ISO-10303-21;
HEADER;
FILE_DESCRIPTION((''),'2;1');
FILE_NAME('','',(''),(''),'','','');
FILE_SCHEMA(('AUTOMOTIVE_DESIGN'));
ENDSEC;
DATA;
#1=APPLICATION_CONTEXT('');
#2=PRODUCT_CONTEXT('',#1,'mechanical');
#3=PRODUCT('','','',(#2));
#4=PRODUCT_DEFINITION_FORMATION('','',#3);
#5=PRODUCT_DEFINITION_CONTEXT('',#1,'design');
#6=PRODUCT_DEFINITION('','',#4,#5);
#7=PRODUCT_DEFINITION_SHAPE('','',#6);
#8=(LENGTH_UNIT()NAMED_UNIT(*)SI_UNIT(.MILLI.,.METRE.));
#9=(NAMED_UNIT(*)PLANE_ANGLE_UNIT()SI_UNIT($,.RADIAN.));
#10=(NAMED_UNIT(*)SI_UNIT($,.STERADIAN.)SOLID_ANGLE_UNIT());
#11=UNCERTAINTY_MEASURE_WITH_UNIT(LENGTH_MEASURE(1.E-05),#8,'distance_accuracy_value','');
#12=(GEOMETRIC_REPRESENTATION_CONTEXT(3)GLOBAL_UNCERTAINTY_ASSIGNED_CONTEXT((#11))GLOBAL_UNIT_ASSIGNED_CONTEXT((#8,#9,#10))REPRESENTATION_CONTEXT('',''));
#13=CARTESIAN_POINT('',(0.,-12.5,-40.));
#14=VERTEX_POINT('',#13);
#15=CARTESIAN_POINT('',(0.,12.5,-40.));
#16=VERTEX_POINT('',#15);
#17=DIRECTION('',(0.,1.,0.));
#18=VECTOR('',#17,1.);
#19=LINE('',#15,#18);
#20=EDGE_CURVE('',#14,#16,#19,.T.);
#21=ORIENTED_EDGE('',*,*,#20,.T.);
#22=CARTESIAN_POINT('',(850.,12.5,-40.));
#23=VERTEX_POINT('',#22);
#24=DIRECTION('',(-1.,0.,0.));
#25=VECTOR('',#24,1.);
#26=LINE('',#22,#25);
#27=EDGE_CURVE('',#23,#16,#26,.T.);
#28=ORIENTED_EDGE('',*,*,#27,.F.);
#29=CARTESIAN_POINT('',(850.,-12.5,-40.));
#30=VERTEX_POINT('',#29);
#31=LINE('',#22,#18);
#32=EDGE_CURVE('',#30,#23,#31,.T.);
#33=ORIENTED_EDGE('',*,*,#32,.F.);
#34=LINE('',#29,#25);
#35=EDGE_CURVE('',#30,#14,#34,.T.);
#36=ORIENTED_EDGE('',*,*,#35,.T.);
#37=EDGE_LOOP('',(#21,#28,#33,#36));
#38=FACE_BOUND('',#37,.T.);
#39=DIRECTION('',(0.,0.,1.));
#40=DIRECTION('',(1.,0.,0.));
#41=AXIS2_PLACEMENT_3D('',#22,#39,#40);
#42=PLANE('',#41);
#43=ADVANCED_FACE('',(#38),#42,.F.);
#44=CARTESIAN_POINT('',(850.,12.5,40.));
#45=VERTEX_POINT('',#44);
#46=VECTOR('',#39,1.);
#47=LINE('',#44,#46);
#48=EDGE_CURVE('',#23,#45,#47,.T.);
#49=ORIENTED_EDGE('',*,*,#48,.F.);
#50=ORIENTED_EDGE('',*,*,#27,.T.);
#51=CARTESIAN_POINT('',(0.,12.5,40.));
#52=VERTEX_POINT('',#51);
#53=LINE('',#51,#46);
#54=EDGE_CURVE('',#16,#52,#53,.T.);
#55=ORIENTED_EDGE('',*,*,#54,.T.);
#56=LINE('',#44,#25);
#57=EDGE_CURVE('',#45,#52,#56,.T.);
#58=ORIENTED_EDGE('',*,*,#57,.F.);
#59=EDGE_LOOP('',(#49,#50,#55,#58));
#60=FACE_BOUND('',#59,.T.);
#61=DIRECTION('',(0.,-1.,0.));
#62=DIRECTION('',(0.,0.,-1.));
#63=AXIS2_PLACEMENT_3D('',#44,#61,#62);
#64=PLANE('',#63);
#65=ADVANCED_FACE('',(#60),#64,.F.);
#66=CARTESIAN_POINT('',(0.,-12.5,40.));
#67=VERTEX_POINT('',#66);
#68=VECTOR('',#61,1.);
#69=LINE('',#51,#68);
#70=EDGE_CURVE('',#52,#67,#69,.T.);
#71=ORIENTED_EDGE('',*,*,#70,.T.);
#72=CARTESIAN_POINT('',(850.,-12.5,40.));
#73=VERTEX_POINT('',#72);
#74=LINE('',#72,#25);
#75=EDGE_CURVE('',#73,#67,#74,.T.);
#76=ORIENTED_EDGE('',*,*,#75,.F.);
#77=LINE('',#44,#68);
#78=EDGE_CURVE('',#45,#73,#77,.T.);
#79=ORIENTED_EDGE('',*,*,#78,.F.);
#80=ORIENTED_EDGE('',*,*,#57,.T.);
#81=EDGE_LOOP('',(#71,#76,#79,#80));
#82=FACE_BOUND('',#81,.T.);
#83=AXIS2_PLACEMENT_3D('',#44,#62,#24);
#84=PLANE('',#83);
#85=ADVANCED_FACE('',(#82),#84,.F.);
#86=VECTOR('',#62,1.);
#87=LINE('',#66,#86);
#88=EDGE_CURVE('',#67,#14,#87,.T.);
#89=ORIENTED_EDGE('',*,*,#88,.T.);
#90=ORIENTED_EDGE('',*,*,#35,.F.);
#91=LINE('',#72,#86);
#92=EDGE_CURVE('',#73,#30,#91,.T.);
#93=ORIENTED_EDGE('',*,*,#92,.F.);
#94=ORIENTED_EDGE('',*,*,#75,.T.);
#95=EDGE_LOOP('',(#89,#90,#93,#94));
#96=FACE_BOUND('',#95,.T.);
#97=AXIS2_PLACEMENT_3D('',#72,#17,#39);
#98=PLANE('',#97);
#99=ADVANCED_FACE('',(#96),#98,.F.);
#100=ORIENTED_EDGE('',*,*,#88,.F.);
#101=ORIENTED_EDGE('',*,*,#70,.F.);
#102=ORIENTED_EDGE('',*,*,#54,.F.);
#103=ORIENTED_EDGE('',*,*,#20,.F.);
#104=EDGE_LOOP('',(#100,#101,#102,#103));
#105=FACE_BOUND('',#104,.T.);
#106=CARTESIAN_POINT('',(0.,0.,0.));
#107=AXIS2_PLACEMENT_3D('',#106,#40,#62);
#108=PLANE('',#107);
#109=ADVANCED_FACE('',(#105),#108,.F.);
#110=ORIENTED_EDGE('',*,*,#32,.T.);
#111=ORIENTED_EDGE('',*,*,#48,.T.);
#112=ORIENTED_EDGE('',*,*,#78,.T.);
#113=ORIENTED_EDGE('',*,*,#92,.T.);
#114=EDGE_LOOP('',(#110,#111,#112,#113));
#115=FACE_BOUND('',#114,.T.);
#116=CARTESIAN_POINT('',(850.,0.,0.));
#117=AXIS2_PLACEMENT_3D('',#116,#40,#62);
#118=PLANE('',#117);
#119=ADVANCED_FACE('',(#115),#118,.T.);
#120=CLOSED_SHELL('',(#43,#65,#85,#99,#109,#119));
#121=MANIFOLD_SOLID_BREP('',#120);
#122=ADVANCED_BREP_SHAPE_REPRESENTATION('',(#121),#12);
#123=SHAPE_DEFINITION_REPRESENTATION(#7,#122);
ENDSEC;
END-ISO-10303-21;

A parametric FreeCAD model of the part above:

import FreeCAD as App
import Part
import Sketcher


def add_polygon(sketch, points):
    """Adds a closed chain of lines whose ends are joined by coincident constraints."""
    first, n = sketch.GeometryCount, len(points)
    for a, b in zip(points, points[1:] + points[:1]):
        sketch.addGeometry(Part.LineSegment(App.Vector(*a, 0), App.Vector(*b, 0)), False)
    for i in range(n):
        sketch.addConstraint(Sketcher.Constraint("Coincident", first + i, 2, first + (i + 1) % n, 1))

doc = App.newDocument("Part")
body = doc.addObject("PartDesign::Body", "Body")

# Sketch on YZ plane
sketch1 = body.newObject("Sketcher::SketchObject", "Sketch")
sketch1.AttachmentSupport = (doc.getObject("YZ_Plane"), [""])
sketch1.MapMode = "FlatFace"
add_polygon(sketch1, [(12, 40), (-12, 40), (-12, -40), (12, -40)])  # lines 0-3
sketch1.addConstraint(Sketcher.Constraint("Horizontal", 0))
sketch1.addConstraint(Sketcher.Constraint("Vertical", 1))
sketch1.addConstraint(Sketcher.Constraint("Horizontal", 2))
sketch1.addConstraint(Sketcher.Constraint("Vertical", 3))
sketch1.addConstraint(Sketcher.Constraint("Symmetric", 0, 2, 2, 2, -1, 1))
sketch1.addConstraint(Sketcher.Constraint("DistanceX", 0, 2, 0, 1, 25.0))
sketch1.addConstraint(Sketcher.Constraint("DistanceY", 1, 2, 1, 1, 80.0))
pad1 = body.newObject("PartDesign::Pad", "Pad")
pad1.Profile = sketch1
pad1.Length = 850

doc.recompute()
